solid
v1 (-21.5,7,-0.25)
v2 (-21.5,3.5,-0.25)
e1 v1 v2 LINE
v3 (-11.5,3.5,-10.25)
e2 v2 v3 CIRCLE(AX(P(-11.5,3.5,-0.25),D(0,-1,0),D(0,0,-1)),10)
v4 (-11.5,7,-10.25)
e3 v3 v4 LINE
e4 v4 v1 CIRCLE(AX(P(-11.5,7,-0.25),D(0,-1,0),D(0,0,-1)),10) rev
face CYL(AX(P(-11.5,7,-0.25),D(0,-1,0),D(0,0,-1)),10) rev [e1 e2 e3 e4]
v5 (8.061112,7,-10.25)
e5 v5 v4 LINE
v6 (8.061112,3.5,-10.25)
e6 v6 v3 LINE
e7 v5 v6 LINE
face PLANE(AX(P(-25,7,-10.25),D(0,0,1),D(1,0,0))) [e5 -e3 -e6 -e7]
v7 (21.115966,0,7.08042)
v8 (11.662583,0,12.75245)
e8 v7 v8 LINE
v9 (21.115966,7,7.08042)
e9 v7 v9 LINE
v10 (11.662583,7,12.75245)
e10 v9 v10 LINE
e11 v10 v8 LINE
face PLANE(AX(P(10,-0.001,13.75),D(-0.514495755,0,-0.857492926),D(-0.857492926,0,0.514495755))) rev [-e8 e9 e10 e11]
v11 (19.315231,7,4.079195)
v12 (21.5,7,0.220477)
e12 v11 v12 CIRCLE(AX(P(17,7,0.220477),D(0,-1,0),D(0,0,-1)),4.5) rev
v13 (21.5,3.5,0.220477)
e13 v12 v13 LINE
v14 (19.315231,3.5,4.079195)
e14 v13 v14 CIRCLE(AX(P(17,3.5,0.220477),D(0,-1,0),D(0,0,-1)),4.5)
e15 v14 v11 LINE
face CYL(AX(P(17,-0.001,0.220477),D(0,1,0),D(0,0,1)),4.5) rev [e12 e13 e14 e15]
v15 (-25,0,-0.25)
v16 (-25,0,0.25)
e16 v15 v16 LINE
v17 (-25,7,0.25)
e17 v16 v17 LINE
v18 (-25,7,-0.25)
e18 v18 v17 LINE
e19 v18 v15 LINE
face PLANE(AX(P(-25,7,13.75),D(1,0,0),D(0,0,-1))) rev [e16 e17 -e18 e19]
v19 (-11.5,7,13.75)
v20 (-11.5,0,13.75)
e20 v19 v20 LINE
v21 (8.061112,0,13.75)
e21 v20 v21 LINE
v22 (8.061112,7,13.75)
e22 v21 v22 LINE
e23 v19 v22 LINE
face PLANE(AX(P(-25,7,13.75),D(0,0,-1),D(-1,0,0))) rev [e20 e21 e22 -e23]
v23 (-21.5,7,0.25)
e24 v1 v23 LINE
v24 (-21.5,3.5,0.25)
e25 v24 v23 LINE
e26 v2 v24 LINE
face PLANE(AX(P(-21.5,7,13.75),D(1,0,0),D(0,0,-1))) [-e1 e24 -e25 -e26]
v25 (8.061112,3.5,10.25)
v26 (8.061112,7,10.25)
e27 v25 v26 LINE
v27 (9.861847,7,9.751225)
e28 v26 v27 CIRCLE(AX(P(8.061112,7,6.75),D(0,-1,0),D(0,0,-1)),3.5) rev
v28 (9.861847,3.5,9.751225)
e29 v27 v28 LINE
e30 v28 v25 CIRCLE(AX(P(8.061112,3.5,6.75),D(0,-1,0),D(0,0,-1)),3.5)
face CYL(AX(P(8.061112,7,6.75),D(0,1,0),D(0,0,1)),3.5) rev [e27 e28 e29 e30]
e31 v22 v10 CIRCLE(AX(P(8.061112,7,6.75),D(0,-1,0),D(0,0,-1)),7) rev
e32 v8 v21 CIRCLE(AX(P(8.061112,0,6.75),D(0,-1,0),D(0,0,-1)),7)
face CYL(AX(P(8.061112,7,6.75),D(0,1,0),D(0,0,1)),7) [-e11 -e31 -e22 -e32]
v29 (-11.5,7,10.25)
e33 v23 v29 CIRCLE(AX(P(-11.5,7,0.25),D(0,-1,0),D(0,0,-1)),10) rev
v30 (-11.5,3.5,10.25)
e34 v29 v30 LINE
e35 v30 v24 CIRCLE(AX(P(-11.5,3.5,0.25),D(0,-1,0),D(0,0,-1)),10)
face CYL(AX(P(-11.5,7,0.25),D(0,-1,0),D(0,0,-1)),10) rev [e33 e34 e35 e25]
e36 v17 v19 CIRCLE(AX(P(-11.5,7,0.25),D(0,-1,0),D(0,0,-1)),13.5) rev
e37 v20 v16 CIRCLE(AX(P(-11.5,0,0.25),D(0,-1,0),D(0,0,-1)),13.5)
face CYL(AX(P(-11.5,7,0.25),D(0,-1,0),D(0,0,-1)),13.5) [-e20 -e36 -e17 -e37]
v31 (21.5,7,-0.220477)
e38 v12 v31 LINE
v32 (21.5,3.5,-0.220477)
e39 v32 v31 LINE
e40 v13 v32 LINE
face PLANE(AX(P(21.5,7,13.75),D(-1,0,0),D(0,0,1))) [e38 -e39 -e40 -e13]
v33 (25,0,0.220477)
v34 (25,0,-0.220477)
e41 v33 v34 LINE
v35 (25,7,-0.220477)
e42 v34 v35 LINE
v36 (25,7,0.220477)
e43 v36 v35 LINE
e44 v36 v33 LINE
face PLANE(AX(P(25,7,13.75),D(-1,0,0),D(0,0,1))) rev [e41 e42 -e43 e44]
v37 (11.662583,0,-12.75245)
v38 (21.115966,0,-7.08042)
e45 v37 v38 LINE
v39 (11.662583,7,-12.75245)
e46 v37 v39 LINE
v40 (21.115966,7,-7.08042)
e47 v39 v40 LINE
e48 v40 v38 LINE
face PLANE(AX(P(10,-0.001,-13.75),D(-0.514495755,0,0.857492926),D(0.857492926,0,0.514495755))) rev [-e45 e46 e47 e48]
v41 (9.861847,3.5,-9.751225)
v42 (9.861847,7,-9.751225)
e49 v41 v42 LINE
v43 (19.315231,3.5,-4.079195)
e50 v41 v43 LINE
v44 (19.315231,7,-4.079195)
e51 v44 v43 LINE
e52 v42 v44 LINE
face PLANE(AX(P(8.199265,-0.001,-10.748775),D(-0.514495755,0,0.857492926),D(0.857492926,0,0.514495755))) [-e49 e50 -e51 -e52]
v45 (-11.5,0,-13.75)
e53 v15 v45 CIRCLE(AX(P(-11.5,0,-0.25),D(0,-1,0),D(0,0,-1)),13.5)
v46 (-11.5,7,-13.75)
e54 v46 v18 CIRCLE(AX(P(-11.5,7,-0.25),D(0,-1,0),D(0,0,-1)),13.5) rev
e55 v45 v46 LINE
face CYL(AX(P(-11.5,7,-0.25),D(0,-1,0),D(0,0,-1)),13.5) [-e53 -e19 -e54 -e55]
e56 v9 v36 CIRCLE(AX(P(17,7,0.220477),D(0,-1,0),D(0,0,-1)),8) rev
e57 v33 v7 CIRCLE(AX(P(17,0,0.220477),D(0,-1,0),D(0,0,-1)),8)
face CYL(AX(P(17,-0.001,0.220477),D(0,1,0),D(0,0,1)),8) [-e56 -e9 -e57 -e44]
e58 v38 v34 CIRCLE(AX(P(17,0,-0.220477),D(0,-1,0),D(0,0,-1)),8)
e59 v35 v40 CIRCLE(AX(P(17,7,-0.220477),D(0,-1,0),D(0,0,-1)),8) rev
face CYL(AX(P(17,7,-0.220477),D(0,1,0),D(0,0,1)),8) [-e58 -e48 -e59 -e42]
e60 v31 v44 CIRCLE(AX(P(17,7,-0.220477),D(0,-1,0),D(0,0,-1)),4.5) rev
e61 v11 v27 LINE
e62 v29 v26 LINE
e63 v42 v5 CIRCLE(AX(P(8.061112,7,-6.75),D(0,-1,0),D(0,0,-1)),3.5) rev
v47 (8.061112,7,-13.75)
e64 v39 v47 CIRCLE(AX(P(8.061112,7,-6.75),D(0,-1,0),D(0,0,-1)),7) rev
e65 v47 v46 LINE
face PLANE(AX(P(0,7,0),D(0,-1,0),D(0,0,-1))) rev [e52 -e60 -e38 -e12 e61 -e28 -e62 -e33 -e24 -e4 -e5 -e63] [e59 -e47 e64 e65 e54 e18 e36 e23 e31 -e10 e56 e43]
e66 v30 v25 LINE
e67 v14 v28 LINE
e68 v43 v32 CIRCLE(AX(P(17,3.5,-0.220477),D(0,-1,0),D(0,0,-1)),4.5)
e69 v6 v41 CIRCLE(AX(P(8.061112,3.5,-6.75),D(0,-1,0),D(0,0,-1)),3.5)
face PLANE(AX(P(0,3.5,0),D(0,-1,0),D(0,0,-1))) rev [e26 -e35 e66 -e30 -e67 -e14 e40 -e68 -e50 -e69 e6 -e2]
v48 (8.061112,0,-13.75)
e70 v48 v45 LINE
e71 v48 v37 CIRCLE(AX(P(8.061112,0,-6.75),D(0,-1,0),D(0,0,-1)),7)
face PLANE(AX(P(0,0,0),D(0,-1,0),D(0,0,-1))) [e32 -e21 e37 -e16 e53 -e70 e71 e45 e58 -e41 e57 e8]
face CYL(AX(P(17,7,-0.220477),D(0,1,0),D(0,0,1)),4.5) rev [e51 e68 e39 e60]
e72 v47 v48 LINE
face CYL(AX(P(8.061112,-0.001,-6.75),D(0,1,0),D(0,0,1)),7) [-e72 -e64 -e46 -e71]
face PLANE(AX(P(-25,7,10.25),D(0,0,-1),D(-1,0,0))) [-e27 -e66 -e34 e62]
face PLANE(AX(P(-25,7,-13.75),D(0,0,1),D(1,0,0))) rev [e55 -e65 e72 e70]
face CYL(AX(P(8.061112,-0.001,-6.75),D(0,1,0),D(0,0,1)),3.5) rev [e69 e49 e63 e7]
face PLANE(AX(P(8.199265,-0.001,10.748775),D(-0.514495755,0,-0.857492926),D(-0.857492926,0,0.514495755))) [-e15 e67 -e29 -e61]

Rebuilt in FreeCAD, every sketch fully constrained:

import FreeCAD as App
import Part
import Sketcher
from FreeCAD import Vector
Q = App.Units.Quantity


def edges_at(feature, points):
    """Names of the edges that pass closest to the given points."""
    edges = feature.Shape.Edges
    near = lambda p: min(range(len(edges)), key=lambda i: edges[i].distToShape(Part.Vertex(*p))[0])
    return sorted({f"Edge{near(p) + 1}" for p in points})


def faces_at(feature, points):
    """Names of the faces that lie closest to the given points."""
    faces = feature.Shape.Faces
    near = lambda p: min(range(len(faces)), key=lambda i: faces[i].distToShape(Part.Vertex(*p))[0])
    return sorted({f"Face{near(p) + 1}" for p in points})

doc = App.newDocument("Part")
body = doc.addObject("PartDesign::Body", "Body")

sketch1 = body.newObject("Sketcher::SketchObject", "Sketch")
sketch1.AttachmentSupport = (doc.getObject("XZ_Plane"), [""])
sketch1.MapMode = "FlatFace"
sketch1.addGeometry([
    Part.LineSegment(Vector(-25, -14, 0), Vector(-25, 14, 0)),
    Part.LineSegment(Vector(-25, 14, 0), Vector(25, 14, 0)),
    Part.LineSegment(Vector(25, 14, 0), Vector(25, -14, 0)),
    Part.LineSegment(Vector(25, -14, 0), Vector(-25, -14, 0)),
], False)
sketch1.addConstraint([
    Sketcher.Constraint("Coincident", 0, 2, 1, 1),
    Sketcher.Constraint("Coincident", 1, 2, 2, 1),
    Sketcher.Constraint("Coincident", 2, 2, 3, 1),
    Sketcher.Constraint("Coincident", 3, 2, 0, 1),
    Sketcher.Constraint("Vertical", 0),
    Sketcher.Constraint("Horizontal", 1),
    Sketcher.Constraint("Vertical", 2),
    Sketcher.Constraint("Horizontal", 3),
    Sketcher.Constraint("Symmetric", 0, 2, 2, 2, -1, 1),
    Sketcher.Constraint("DistanceX", 1, 1, 1, 2, Q("50 mm")),
    Sketcher.Constraint("DistanceY", 0, 1, 0, 2, Q("27.5 mm")),
])
pad1 = body.newObject("PartDesign::Pad", "Pad")
pad1.Profile = sketch1
pad1.Length = 7
pad1.Reversed = True
doc.recompute()

fillet = body.newObject("PartDesign::Fillet", "Fillet")
fillet.Base = (pad1, edges_at(pad1, [(-25, 3.5, 13.75), (-25, 3.5, -13.75)]))
fillet.Radius = 13.5

sketch2 = body.newObject("Sketcher::SketchObject", "Sketch001")
sketch2.AttachmentSupport = (doc.getObject("XZ_Plane"), [""])
sketch2.MapMode = "FlatFace"
sketch2.AttachmentOffset = App.Placement(Vector(0, 0, -7), App.Rotation())
sketch2.addGeometry([
    Part.LineSegment(Vector(10, -14, 0), Vector(25, -5, 0)),
    Part.LineSegment(Vector(25, -5, 0), Vector(25, -14, 0)),
    Part.LineSegment(Vector(25, -14, 0), Vector(10, -14, 0)),
], False)
sketch2.addConstraint([
    Sketcher.Constraint("Coincident", 0, 2, 1, 1),
    Sketcher.Constraint("Coincident", 1, 2, 2, 1),
    Sketcher.Constraint("Coincident", 2, 2, 0, 1),
    Sketcher.Constraint("Vertical", 1),
    Sketcher.Constraint("Horizontal", 2),
    Sketcher.Constraint("DistanceX", 2, 2, 2, 1, Q("15 mm")),
    Sketcher.Constraint("DistanceY", 1, 2, 1, 1, Q("9 mm")),
    Sketcher.Constraint("DistanceX", -1, 1, 0, 2, Q("25 mm")),
    Sketcher.Constraint("DistanceY", 0, 2, -1, 1, Q("4.75 mm")),
])
pocket1 = body.newObject("PartDesign::Pocket", "Pocket")
pocket1.Profile = sketch2
pocket1.Type = "UpToFirst"
pocket1.Reversed = True

sketch3 = body.newObject("Sketcher::SketchObject", "Sketch002")
sketch3.AttachmentSupport = (doc.getObject("XZ_Plane"), [""])
sketch3.MapMode = "FlatFace"
sketch3.AttachmentOffset = App.Placement(Vector(0, 0, -7), App.Rotation())
sketch3.addGeometry([
    Part.LineSegment(Vector(10, 14, 0), Vector(25, 14, 0)),
    Part.LineSegment(Vector(25, 14, 0), Vector(25, 5, 0)),
    Part.LineSegment(Vector(25, 5, 0), Vector(10, 14, 0)),
], False)
sketch3.addConstraint([
    Sketcher.Constraint("Coincident", 0, 2, 1, 1),
    Sketcher.Constraint("Coincident", 1, 2, 2, 1),
    Sketcher.Constraint("Coincident", 2, 2, 0, 1),
    Sketcher.Constraint("Horizontal", 0),
    Sketcher.Constraint("Vertical", 1),
    Sketcher.Constraint("DistanceX", 0, 1, 0, 2, Q("15 mm")),
    Sketcher.Constraint("DistanceY", 1, 2, 1, 1, Q("9 mm")),
    Sketcher.Constraint("DistanceX", -1, 1, 0, 2, Q("25 mm")),
    Sketcher.Constraint("DistanceY", -1, 1, 0, 2, Q("13.75 mm")),
])
pocket2 = body.newObject("PartDesign::Pocket", "Pocket001")
pocket2.Profile = sketch3
pocket2.Type = "UpToFirst"
pocket2.Reversed = True
doc.recompute()

fillet2 = body.newObject("PartDesign::Fillet", "Fillet001")
fillet2.Base = (pocket2, edges_at(pocket2, [(25, 3.5, -4.75), (25, 3.5, 4.75)]))
fillet2.Radius = 8
doc.recompute()

fillet3 = body.newObject("PartDesign::Fillet", "Fillet002")
fillet3.Base = (fillet2, edges_at(fillet2, [(10, 3.5, -13.75), (10, 3.5, 13.75)]))
fillet3.Radius = 7
doc.recompute()

thickness = body.newObject("PartDesign::Thickness", "Thickness")
thickness.Base = (fillet3, faces_at(fillet3, [(0, 7, 0)]))
thickness.Value = 3.5
thickness.Reversed = True
thickness.Join = "Intersection"

doc.recompute()
